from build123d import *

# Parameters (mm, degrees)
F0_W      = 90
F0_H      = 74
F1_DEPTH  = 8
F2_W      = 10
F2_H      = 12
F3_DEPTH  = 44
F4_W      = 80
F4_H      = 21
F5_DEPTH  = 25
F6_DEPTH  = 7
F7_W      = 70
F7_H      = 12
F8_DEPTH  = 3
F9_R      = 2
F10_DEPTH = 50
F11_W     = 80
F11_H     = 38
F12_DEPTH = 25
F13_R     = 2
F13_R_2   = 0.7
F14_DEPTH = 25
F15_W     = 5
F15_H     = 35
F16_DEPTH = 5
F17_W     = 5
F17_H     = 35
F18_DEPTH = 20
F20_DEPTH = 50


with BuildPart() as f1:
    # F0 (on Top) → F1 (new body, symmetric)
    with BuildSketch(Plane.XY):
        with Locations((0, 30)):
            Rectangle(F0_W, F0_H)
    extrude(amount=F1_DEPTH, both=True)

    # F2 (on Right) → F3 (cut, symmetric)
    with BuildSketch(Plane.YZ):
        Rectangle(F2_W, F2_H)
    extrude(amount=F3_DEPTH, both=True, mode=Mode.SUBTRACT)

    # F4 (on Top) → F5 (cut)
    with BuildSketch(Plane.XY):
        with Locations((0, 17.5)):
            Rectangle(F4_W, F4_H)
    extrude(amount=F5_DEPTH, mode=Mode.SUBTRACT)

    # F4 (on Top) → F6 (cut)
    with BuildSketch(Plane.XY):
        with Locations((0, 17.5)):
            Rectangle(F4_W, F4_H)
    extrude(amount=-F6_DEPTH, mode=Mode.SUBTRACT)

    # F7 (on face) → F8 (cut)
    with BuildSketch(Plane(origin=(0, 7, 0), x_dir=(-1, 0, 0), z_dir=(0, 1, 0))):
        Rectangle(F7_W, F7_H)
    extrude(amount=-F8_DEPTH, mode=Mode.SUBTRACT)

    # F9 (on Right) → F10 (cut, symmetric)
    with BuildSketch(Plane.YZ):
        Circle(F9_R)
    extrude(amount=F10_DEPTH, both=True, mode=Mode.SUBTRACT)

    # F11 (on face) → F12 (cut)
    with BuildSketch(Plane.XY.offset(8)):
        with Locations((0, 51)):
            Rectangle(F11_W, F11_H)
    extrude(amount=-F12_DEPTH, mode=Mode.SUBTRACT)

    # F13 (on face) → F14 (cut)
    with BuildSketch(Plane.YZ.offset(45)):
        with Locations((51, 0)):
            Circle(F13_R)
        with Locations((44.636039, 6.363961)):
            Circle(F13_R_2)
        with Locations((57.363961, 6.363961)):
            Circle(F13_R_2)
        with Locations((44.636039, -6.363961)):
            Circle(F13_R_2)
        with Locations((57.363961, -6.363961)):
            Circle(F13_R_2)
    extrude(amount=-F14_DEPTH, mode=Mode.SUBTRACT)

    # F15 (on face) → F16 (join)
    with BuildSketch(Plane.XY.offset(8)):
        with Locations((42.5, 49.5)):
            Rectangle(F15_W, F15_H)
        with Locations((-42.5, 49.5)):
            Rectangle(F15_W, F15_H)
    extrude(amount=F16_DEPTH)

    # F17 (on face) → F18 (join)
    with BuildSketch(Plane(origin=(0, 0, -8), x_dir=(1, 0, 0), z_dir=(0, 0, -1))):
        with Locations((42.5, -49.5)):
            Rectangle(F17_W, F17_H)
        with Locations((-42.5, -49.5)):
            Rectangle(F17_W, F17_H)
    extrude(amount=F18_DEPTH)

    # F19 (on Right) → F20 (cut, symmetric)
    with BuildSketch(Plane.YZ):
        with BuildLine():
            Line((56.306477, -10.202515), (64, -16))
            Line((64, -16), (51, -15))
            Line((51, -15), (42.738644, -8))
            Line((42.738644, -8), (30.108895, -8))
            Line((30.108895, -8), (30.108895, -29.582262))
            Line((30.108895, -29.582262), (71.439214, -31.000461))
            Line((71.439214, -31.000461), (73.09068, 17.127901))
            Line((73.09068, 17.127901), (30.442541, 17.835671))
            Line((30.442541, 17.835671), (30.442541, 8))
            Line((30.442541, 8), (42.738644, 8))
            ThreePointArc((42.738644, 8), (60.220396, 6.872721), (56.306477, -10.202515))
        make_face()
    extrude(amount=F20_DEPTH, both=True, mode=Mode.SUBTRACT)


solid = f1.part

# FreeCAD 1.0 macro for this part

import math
import FreeCAD as App
import Part
import Sketcher
from FreeCAD import Vector
Q = App.Units.Quantity


def add_polygon(sketch, points):
    """Adds a closed chain of lines whose ends are joined by coincident constraints."""
    first, n = sketch.GeometryCount, len(points)
    for a, b in zip(points, points[1:] + points[:1]):
        sketch.addGeometry(Part.LineSegment(App.Vector(*a, 0), App.Vector(*b, 0)), False)
    for i in range(n):
        sketch.addConstraint(Sketcher.Constraint("Coincident", first + i, 2, first + (i + 1) % n, 1))

doc = App.newDocument("Part")
params = doc.addObject("Spreadsheet::Sheet", "Params")
for row, (alias, value) in enumerate([
    ("sketch1_width", "90 mm"),
    ("sketch1_height", "74 mm"),
    ("pad1_length", "16 mm"),
    ("sketch2_width", "10 mm"),
    ("sketch2_height", "12 mm"),
    ("pocket1_length", "88 mm"),
    ("sketch3_width", "80 mm"),
    ("sketch3_height", "21 mm"),
    ("pocket2_length", "25 mm"),
    ("sketch4_width", "80 mm"),
    ("sketch4_height", "21 mm"),
    ("pocket3_length", "7 mm"),
    ("sketch5_width", "70 mm"),
    ("sketch5_height", "12 mm"),
    ("pocket4_length", "3 mm"),
    ("sketch6_diameter", "4 mm"),
    ("pocket5_length", "100 mm"),
    ("sketch7_width", "80 mm"),
    ("sketch7_height", "38 mm"),
    ("pocket6_length", "25 mm"),
    ("sketch8_diameter", "4 mm"),
    ("sketch8_diameter2", "1.4 mm"),
    ("pocket7_length", "25 mm"),
    ("sketch9_width", "5 mm"),
    ("sketch9_height", "35 mm"),
    ("pad2_length", "5 mm"),
    ("sketch10_width", "5 mm"),
    ("sketch10_height", "35 mm"),
    ("pad3_length", "20 mm"),
    ("sketch11_radius", "11.5 mm"),
    ("pocket8_length", "100 mm"),
], start=1):
    params.set(f"A{row}", alias)
    params.set(f"B{row}", "=" + value)
    params.setAlias(f"B{row}", alias)

body = doc.addObject("PartDesign::Body", "Body")

# Sketch on XY plane
sketch1 = doc.addObject("Sketcher::SketchObject", "Sketch")
body.addObject(sketch1)
sketch1.AttachmentSupport = (doc.XY_Plane, [""])
sketch1.MapMode = "FlatFace"
add_polygon(sketch1, [(-45, 67), (-45, -7), (45, -7), (45, 67)])  # lines 0-3
sketch1.addConstraint(Sketcher.Constraint("Vertical", 0))
sketch1.addConstraint(Sketcher.Constraint("Horizontal", 1))
sketch1.addConstraint(Sketcher.Constraint("Vertical", 2))
sketch1.addConstraint(Sketcher.Constraint("Horizontal", 3))
sketch1.addConstraint(Sketcher.Constraint("DistanceX", 1, 1, 1, 2, 90.0))
sketch1.addConstraint(Sketcher.Constraint("DistanceY", 0, 2, 0, 1, 74.0))
sketch1.addConstraint(Sketcher.Constraint("DistanceX", 0, 2, -1, 1, 45.0))
sketch1.addConstraint(Sketcher.Constraint("DistanceY", 0, 2, -1, 1, 7.0))
sketch1.setExpression("Constraints[8]", "Params.sketch1_width")
sketch1.setExpression("Constraints[9]", "Params.sketch1_height")
pad1 = doc.addObject("PartDesign::Pad", "Pad")
body.addObject(pad1)
pad1.Profile = sketch1
pad1.setExpression("Length", "Params.pad1_length")
pad1.Midplane = True

# Sketch on YZ plane
sketch2 = doc.addObject("Sketcher::SketchObject", "Sketch001")
body.addObject(sketch2)
sketch2.AttachmentSupport = (doc.YZ_Plane, [""])
sketch2.MapMode = "FlatFace"
add_polygon(sketch2, [(-5, 6), (-5, -6), (5, -6), (5, 6)])  # lines 0-3
sketch2.addConstraint(Sketcher.Constraint("Vertical", 0))
sketch2.addConstraint(Sketcher.Constraint("Horizontal", 1))
sketch2.addConstraint(Sketcher.Constraint("Vertical", 2))
sketch2.addConstraint(Sketcher.Constraint("Horizontal", 3))
sketch2.addConstraint(Sketcher.Constraint("Symmetric", 0, 2, 2, 2, -1, 1))
sketch2.addConstraint(Sketcher.Constraint("DistanceX", 1, 1, 1, 2, 10.0))
sketch2.addConstraint(Sketcher.Constraint("DistanceY", 0, 2, 0, 1, 12.0))
sketch2.setExpression("Constraints[9]", "Params.sketch2_width")
sketch2.setExpression("Constraints[10]", "Params.sketch2_height")
pocket1 = doc.addObject("PartDesign::Pocket", "Pocket")
body.addObject(pocket1)
pocket1.Profile = sketch2
pocket1.setExpression("Length", "Params.pocket1_length")
pocket1.Midplane = True

# Sketch on XY plane
sketch3 = doc.addObject("Sketcher::SketchObject", "Sketch002")
body.addObject(sketch3)
sketch3.AttachmentSupport = (doc.XY_Plane, [""])
sketch3.MapMode = "FlatFace"
add_polygon(sketch3, [(-40, 28), (-40, 7), (40, 7), (40, 28)])  # lines 0-3
sketch3.addConstraint(Sketcher.Constraint("Vertical", 0))
sketch3.addConstraint(Sketcher.Constraint("Horizontal", 1))
sketch3.addConstraint(Sketcher.Constraint("Vertical", 2))
sketch3.addConstraint(Sketcher.Constraint("Horizontal", 3))
sketch3.addConstraint(Sketcher.Constraint("DistanceX", 1, 1, 1, 2, 80.0))
sketch3.addConstraint(Sketcher.Constraint("DistanceY", 0, 2, 0, 1, 21.0))
sketch3.addConstraint(Sketcher.Constraint("DistanceX", 0, 2, -1, 1, 40.0))
sketch3.addConstraint(Sketcher.Constraint("DistanceY", -1, 1, 0, 2, 7.0))
sketch3.setExpression("Constraints[8]", "Params.sketch3_width")
sketch3.setExpression("Constraints[9]", "Params.sketch3_height")
pocket2 = doc.addObject("PartDesign::Pocket", "Pocket001")
body.addObject(pocket2)
pocket2.Profile = sketch3
pocket2.setExpression("Length", "Params.pocket2_length")
pocket2.Reversed = True

# Sketch on XY plane
sketch4 = doc.addObject("Sketcher::SketchObject", "Sketch003")
body.addObject(sketch4)
sketch4.AttachmentSupport = (doc.XY_Plane, [""])
sketch4.MapMode = "FlatFace"
add_polygon(sketch4, [(-40, 28), (-40, 7), (40, 7), (40, 28)])  # lines 0-3
sketch4.addConstraint(Sketcher.Constraint("Vertical", 0))
sketch4.addConstraint(Sketcher.Constraint("Horizontal", 1))
sketch4.addConstraint(Sketcher.Constraint("Vertical", 2))
sketch4.addConstraint(Sketcher.Constraint("Horizontal", 3))
sketch4.addConstraint(Sketcher.Constraint("DistanceX", 1, 1, 1, 2, 80.0))
sketch4.addConstraint(Sketcher.Constraint("DistanceY", 0, 2, 0, 1, 21.0))
sketch4.addConstraint(Sketcher.Constraint("DistanceX", 0, 2, -1, 1, 40.0))
sketch4.addConstraint(Sketcher.Constraint("DistanceY", -1, 1, 0, 2, 7.0))
sketch4.setExpression("Constraints[8]", "Params.sketch4_width")
sketch4.setExpression("Constraints[9]", "Params.sketch4_height")
pocket3 = doc.addObject("PartDesign::Pocket", "Pocket002")
body.addObject(pocket3)
pocket3.Profile = sketch4
pocket3.setExpression("Length", "Params.pocket3_length")

# Sketch on XZ plane
sketch5 = doc.addObject("Sketcher::SketchObject", "Sketch004")
body.addObject(sketch5)
sketch5.AttachmentSupport = (doc.XZ_Plane, [""])
sketch5.MapMode = "FlatFace"
sketch5.AttachmentOffset = App.Placement(Vector(0, 0, -7), App.Rotation())
add_polygon(sketch5, [(35, 6), (35, -6), (-35, -6), (-35, 6)])  # lines 0-3
sketch5.addConstraint(Sketcher.Constraint("Vertical", 0))
sketch5.addConstraint(Sketcher.Constraint("Horizontal", 1))
sketch5.addConstraint(Sketcher.Constraint("Vertical", 2))
sketch5.addConstraint(Sketcher.Constraint("Horizontal", 3))
sketch5.addConstraint(Sketcher.Constraint("Symmetric", 0, 2, 2, 2, -1, 1))
sketch5.addConstraint(Sketcher.Constraint("DistanceX", 1, 2, 1, 1, 70.0))
sketch5.addConstraint(Sketcher.Constraint("DistanceY", 0, 2, 0, 1, 12.0))
sketch5.setExpression("Constraints[9]", "Params.sketch5_width")
sketch5.setExpression("Constraints[10]", "Params.sketch5_height")
pocket4 = doc.addObject("PartDesign::Pocket", "Pocket003")
body.addObject(pocket4)
pocket4.Profile = sketch5
pocket4.setExpression("Length", "Params.pocket4_length")
pocket4.Reversed = True

# Sketch on YZ plane
sketch6 = doc.addObject("Sketcher::SketchObject", "Sketch005")
body.addObject(sketch6)
sketch6.AttachmentSupport = (doc.YZ_Plane, [""])
sketch6.MapMode = "FlatFace"
sketch6.addGeometry(Part.Circle(Vector(0, 0, 0), Vector(0, 0, 1), 2), False)
sketch6.addConstraint(Sketcher.Constraint("Coincident", 0, 3, -1, 1))
sketch6.addConstraint(Sketcher.Constraint("Diameter", 0, 4.0))
sketch6.setExpression("Constraints[1]", "Params.sketch6_diameter")
pocket5 = doc.addObject("PartDesign::Pocket", "Pocket004")
body.addObject(pocket5)
pocket5.Profile = sketch6
pocket5.setExpression("Length", "Params.pocket5_length")
pocket5.Midplane = True

# Sketch on XY plane
sketch7 = doc.addObject("Sketcher::SketchObject", "Sketch006")
body.addObject(sketch7)
sketch7.AttachmentSupport = (doc.XY_Plane, [""])
sketch7.MapMode = "FlatFace"
sketch7.AttachmentOffset = App.Placement(Vector(0, 0, 8), App.Rotation())
add_polygon(sketch7, [(-40, 70), (-40, 32), (40, 32), (40, 70)])  # lines 0-3
sketch7.addConstraint(Sketcher.Constraint("Vertical", 0))
sketch7.addConstraint(Sketcher.Constraint("Horizontal", 1))
sketch7.addConstraint(Sketcher.Constraint("Vertical", 2))
sketch7.addConstraint(Sketcher.Constraint("Horizontal", 3))
sketch7.addConstraint(Sketcher.Constraint("DistanceX", 1, 1, 1, 2, 80.0))
sketch7.addConstraint(Sketcher.Constraint("DistanceY", 0, 2, 0, 1, 38.0))
sketch7.addConstraint(Sketcher.Constraint("DistanceX", 0, 2, -1, 1, 40.0))
sketch7.addConstraint(Sketcher.Constraint("DistanceY", -1, 1, 0, 2, 32.0))
sketch7.setExpression("Constraints[8]", "Params.sketch7_width")
sketch7.setExpression("Constraints[9]", "Params.sketch7_height")
pocket6 = doc.addObject("PartDesign::Pocket", "Pocket005")
body.addObject(pocket6)
pocket6.Profile = sketch7
pocket6.setExpression("Length", "Params.pocket6_length")

# Sketch on YZ plane
sketch8 = doc.addObject("Sketcher::SketchObject", "Sketch007")
body.addObject(sketch8)
sketch8.AttachmentSupport = (doc.YZ_Plane, [""])
sketch8.MapMode = "FlatFace"
sketch8.AttachmentOffset = App.Placement(Vector(0, 0, 45), App.Rotation())
sketch8.addGeometry(Part.Circle(Vector(51, 0, 0), Vector(0, 0, 1), 2), False)
sketch8.addGeometry(Part.Circle(Vector(44.636039, 6.363961, 0), Vector(0, 0, 1), 0.7), False)
sketch8.addGeometry(Part.Circle(Vector(57.363961, 6.363961, 0), Vector(0, 0, 1), 0.7), False)
sketch8.addGeometry(Part.Circle(Vector(44.636039, -6.363961, 0), Vector(0, 0, 1), 0.7), False)
sketch8.addGeometry(Part.Circle(Vector(57.363961, -6.363961, 0), Vector(0, 0, 1), 0.7), False)
sketch8.addConstraint(Sketcher.Constraint("Equal", 1, 2))
sketch8.addConstraint(Sketcher.Constraint("Equal", 2, 3))
sketch8.addConstraint(Sketcher.Constraint("Equal", 3, 4))
sketch8.addConstraint(Sketcher.Constraint("Symmetric", 1, 3, 3, 3, -1))
sketch8.addConstraint(Sketcher.Constraint("Symmetric", 2, 3, 4, 3, -1))
sketch8.addConstraint(Sketcher.Constraint("PointOnObject", 0, 3, -1))
sketch8.addConstraint(Sketcher.Constraint("Horizontal", 1, 3, 2, 3))
sketch8.addConstraint(Sketcher.Constraint("Diameter", 0, 4.0))
sketch8.addConstraint(Sketcher.Constraint("Diameter", 1, 1.4))
sketch8.addConstraint(Sketcher.Constraint("DistanceX", -1, 1, 0, 3, 51.0))
sketch8.addConstraint(Sketcher.Constraint("DistanceX", -1, 1, 1, 3, 44.636039))
sketch8.addConstraint(Sketcher.Constraint("DistanceY", -1, 1, 1, 3, 6.363961))
sketch8.addConstraint(Sketcher.Constraint("DistanceX", -1, 1, 2, 3, 57.363961))
sketch8.setExpression("Constraints[7]", "Params.sketch8_diameter")
sketch8.setExpression("Constraints[8]", "Params.sketch8_diameter2")
pocket7 = doc.addObject("PartDesign::Pocket", "Pocket006")
body.addObject(pocket7)
pocket7.Profile = sketch8
pocket7.setExpression("Length", "Params.pocket7_length")

# Sketch on XY plane
sketch9 = doc.addObject("Sketcher::SketchObject", "Sketch008")
body.addObject(sketch9)
sketch9.AttachmentSupport = (doc.XY_Plane, [""])
sketch9.MapMode = "FlatFace"
sketch9.AttachmentOffset = App.Placement(Vector(0, 0, 8), App.Rotation())
add_polygon(sketch9, [(40, 67), (40, 32), (45, 32), (45, 67)])  # lines 0-3
add_polygon(sketch9, [(-45, 67), (-45, 32), (-40, 32), (-40, 67)])  # lines 4-7
sketch9.addConstraint(Sketcher.Constraint("Vertical", 0))
sketch9.addConstraint(Sketcher.Constraint("Horizontal", 1))
sketch9.addConstraint(Sketcher.Constraint("Vertical", 2))
sketch9.addConstraint(Sketcher.Constraint("Horizontal", 3))
sketch9.addConstraint(Sketcher.Constraint("Vertical", 4))
sketch9.addConstraint(Sketcher.Constraint("Horizontal", 5))
sketch9.addConstraint(Sketcher.Constraint("Vertical", 6))
sketch9.addConstraint(Sketcher.Constraint("Horizontal", 7))
sketch9.addConstraint(Sketcher.Constraint("Symmetric", 1, 2, 4, 2, -2))
sketch9.addConstraint(Sketcher.Constraint("Symmetric", 3, 2, 6, 2, -2))
sketch9.addConstraint(Sketcher.Constraint("DistanceX", 1, 1, 1, 2, 5.0))
sketch9.addConstraint(Sketcher.Constraint("DistanceY", 0, 2, 0, 1, 35.0))
sketch9.addConstraint(Sketcher.Constraint("DistanceX", -1, 1, 0, 2, 40.0))
sketch9.addConstraint(Sketcher.Constraint("DistanceY", -1, 1, 0, 2, 32.0))
sketch9.setExpression("Constraints[18]", "Params.sketch9_width")
sketch9.setExpression("Constraints[19]", "Params.sketch9_height")
pad2 = doc.addObject("PartDesign::Pad", "Pad001")
body.addObject(pad2)
pad2.Profile = sketch9
pad2.setExpression("Length", "Params.pad2_length")

# Sketch on XY plane
sketch10 = doc.addObject("Sketcher::SketchObject", "Sketch009")
body.addObject(sketch10)
sketch10.AttachmentSupport = (doc.XY_Plane, [""])
sketch10.MapMode = "FlatFace"
sketch10.AttachmentOffset = App.Placement(Vector(0, 0, -8), App.Rotation())
add_polygon(sketch10, [(40, 32), (40, 67), (45, 67), (45, 32)])  # lines 0-3
add_polygon(sketch10, [(-45, 32), (-45, 67), (-40, 67), (-40, 32)])  # lines 4-7
sketch10.addConstraint(Sketcher.Constraint("Vertical", 0))
sketch10.addConstraint(Sketcher.Constraint("Horizontal", 1))
sketch10.addConstraint(Sketcher.Constraint("Vertical", 2))
sketch10.addConstraint(Sketcher.Constraint("Horizontal", 3))
sketch10.addConstraint(Sketcher.Constraint("Vertical", 4))
sketch10.addConstraint(Sketcher.Constraint("Horizontal", 5))
sketch10.addConstraint(Sketcher.Constraint("Vertical", 6))
sketch10.addConstraint(Sketcher.Constraint("Horizontal", 7))
sketch10.addConstraint(Sketcher.Constraint("Symmetric", 1, 2, 4, 2, -2))
sketch10.addConstraint(Sketcher.Constraint("Symmetric", 3, 2, 6, 2, -2))
sketch10.addConstraint(Sketcher.Constraint("DistanceX", 1, 1, 1, 2, 5.0))
sketch10.addConstraint(Sketcher.Constraint("DistanceY", 0, 1, 0, 2, 35.0))
sketch10.addConstraint(Sketcher.Constraint("DistanceX", -1, 1, 0, 2, 40.0))
sketch10.addConstraint(Sketcher.Constraint("DistanceY", -1, 1, 0, 2, 67.0))
sketch10.setExpression("Constraints[18]", "Params.sketch10_width")
sketch10.setExpression("Constraints[19]", "Params.sketch10_height")
pad3 = doc.addObject("PartDesign::Pad", "Pad002")
body.addObject(pad3)
pad3.Profile = sketch10
pad3.setExpression("Length", "Params.pad3_length")
pad3.Reversed = True

# Sketch on YZ plane
sketch11 = doc.addObject("Sketcher::SketchObject", "Sketch010")
body.addObject(sketch11)
sketch11.AttachmentSupport = (doc.YZ_Plane, [""])
sketch11.MapMode = "FlatFace"
sketch11.addGeometry(Part.LineSegment(Vector(56.306477, -10.202515, 0), Vector(64, -16, 0)), False)
sketch11.addGeometry(Part.LineSegment(Vector(64, -16, 0), Vector(51, -15, 0)), False)
sketch11.addGeometry(Part.LineSegment(Vector(51, -15, 0), Vector(42.738644, -8, 0)), False)
sketch11.addGeometry(Part.LineSegment(Vector(42.738644, -8, 0), Vector(30.108895, -8, 0)), False)
sketch11.addGeometry(Part.LineSegment(Vector(30.108895, -8, 0), Vector(30.108895, -29.582262, 0)), False)
sketch11.addGeometry(Part.LineSegment(Vector(30.108895, -29.582262, 0), Vector(71.439214, -31.000461, 0)), False)
sketch11.addGeometry(Part.LineSegment(Vector(71.439214, -31.000461, 0), Vector(73.09068, 17.127901, 0)), False)
sketch11.addGeometry(Part.LineSegment(Vector(73.09068, 17.127901, 0), Vector(30.442541, 17.835671, 0)), False)
sketch11.addGeometry(Part.LineSegment(Vector(30.442541, 17.835671, 0), Vector(30.442541, 8, 0)), False)
sketch11.addGeometry(Part.LineSegment(Vector(30.442541, 8, 0), Vector(42.738644, 8, 0)), False)
sketch11.addGeometry(Part.ArcOfCircle(Part.Circle(Vector(51, 0, 0), Vector(0, 0, 1), 11.5), math.radians(-62.520398), math.radians(135.920789)), False)
sketch11.addConstraint(Sketcher.Constraint("Coincident", 0, 2, 1, 1))
sketch11.addConstraint(Sketcher.Constraint("Coincident", 1, 2, 2, 1))
sketch11.addConstraint(Sketcher.Constraint("Coincident", 2, 2, 3, 1))
sketch11.addConstraint(Sketcher.Constraint("Coincident", 3, 2, 4, 1))
sketch11.addConstraint(Sketcher.Constraint("Coincident", 4, 2, 5, 1))
sketch11.addConstraint(Sketcher.Constraint("Coincident", 5, 2, 6, 1))
sketch11.addConstraint(Sketcher.Constraint("Coincident", 6, 2, 7, 1))
sketch11.addConstraint(Sketcher.Constraint("Coincident", 7, 2, 8, 1))
sketch11.addConstraint(Sketcher.Constraint("Coincident", 8, 2, 9, 1))
sketch11.addConstraint(Sketcher.Constraint("Coincident", 9, 2, 10, 2))
sketch11.addConstraint(Sketcher.Constraint("Coincident", 10, 1, 0, 1))
sketch11.addConstraint(Sketcher.Constraint("Horizontal", 3))
sketch11.addConstraint(Sketcher.Constraint("Vertical", 4))
sketch11.addConstraint(Sketcher.Constraint("Vertical", 8))
sketch11.addConstraint(Sketcher.Constraint("Horizontal", 9))
sketch11.addConstraint(Sketcher.Constraint("Symmetric", 2, 2, 9, 2, -1))
sketch11.addConstraint(Sketcher.Constraint("PointOnObject", 10, 3, -1))
sketch11.addConstraint(Sketcher.Constraint("Perpendicular", 5, 6))
sketch11.addConstraint(Sketcher.Constraint("Vertical", 10, 3, 1, 2))
sketch11.addConstraint(Sketcher.Constraint("Radius", 10, 11.5))
sketch11.addConstraint(Sketcher.Constraint("Angle", 0, Q("-36.999998 deg")))
sketch11.addConstraint(Sketcher.Constraint("DistanceX", -1, 1, 10, 3, 51.0))
sketch11.addConstraint(Sketcher.Constraint("DistanceX", -1, 1, 0, 2, 64.0))
sketch11.addConstraint(Sketcher.Constraint("DistanceY", 0, 2, -1, 1, 16.0))
sketch11.addConstraint(Sketcher.Constraint("DistanceY", 1, 2, -1, 1, 15.0))
sketch11.addConstraint(Sketcher.Constraint("DistanceY", 2, 2, -1, 1, 8.0))
sketch11.addConstraint(Sketcher.Constraint("DistanceX", 3, 2, 3, 1, 12.629749))
sketch11.addConstraint(Sketcher.Constraint("DistanceY", 4, 2, 4, 1, 21.582262))
sketch11.addConstraint(Sketcher.Constraint("DistanceY", 8, 2, 8, 1, 9.835671))
sketch11.addConstraint(Sketcher.Constraint("DistanceY", -1, 1, 6, 2, 17.127901))
sketch11.addConstraint(Sketcher.Constraint("DistanceY", 5, 2, 4, 2, 1.418199))
sketch11.addConstraint(Sketcher.Constraint("Distance", 7, 42.654012))
sketch11.addConstraint(Sketcher.Constraint("DistanceX", 9, 1, 9, 2, 12.296103))
sketch11.setExpression("Constraints[19]", "Params.sketch11_radius")
pocket8 = doc.addObject("PartDesign::Pocket", "Pocket007")
body.addObject(pocket8)
pocket8.Profile = sketch11
pocket8.setExpression("Length", "Params.pocket8_length")
pocket8.Midplane = True

doc.recompute()
